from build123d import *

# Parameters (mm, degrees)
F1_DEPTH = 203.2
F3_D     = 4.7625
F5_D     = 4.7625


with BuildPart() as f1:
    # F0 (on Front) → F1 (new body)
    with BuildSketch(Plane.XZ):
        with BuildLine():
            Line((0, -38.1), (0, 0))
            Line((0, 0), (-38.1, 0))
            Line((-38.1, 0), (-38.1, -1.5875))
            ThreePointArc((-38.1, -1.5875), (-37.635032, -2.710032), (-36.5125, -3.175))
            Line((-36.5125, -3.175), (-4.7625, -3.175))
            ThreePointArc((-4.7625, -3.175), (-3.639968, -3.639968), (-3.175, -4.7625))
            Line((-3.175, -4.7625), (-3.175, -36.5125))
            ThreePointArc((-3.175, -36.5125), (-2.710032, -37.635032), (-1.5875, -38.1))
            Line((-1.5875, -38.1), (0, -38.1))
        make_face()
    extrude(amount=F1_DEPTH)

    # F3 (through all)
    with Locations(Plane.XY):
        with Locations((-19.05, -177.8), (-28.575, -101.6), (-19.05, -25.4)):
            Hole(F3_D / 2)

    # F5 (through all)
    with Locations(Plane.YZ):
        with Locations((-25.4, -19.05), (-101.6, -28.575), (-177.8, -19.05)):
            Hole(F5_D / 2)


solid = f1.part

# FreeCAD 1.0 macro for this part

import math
import FreeCAD as App
import Part
import Sketcher
Q = App.Units.Quantity

doc = App.newDocument("Part")
body = doc.addObject("PartDesign::Body", "Body")

# Sketch on XZ plane
sketch1 = body.newObject("Sketcher::SketchObject", "Sketch")
sketch1.AttachmentSupport = (doc.getObject("XZ_Plane"), [""])
sketch1.MapMode = "FlatFace"
sketch1.addGeometry(Part.LineSegment(App.Vector(0, -38.1, 0), App.Vector(0, 0, 0)), False)
sketch1.addGeometry(Part.LineSegment(App.Vector(0, 0, 0), App.Vector(-38.1, 0, 0)), False)
sketch1.addGeometry(Part.LineSegment(App.Vector(-38.1, 0, 0), App.Vector(-38.1, -1.6, 0)), False)
sketch1.addGeometry(Part.ArcOfCircle(Part.Circle(App.Vector(-36.5, -1.6, 0), App.Vector(0, 0, 1), 1.6), math.radians(-180), math.radians(-90)), False)
sketch1.addGeometry(Part.LineSegment(App.Vector(-36.5, -3.2, 0), App.Vector(-4.8, -3.2, 0)), False)
sketch1.addGeometry(Part.ArcOfCircle(Part.Circle(App.Vector(-4.8, -4.8, 0), App.Vector(0, 0, 1), 1.6), math.radians(0), math.radians(90)), False)
sketch1.addGeometry(Part.LineSegment(App.Vector(-3.2, -4.8, 0), App.Vector(-3.2, -36.5, 0)), False)
sketch1.addGeometry(Part.ArcOfCircle(Part.Circle(App.Vector(-1.6, -36.5, 0), App.Vector(0, 0, 1), 1.6), math.radians(-180), math.radians(-90)), False)
sketch1.addGeometry(Part.LineSegment(App.Vector(-1.6, -38.1, 0), App.Vector(0, -38.1, 0)), False)
sketch1.addConstraint(Sketcher.Constraint("Coincident", 0, 2, 1, 1))
sketch1.addConstraint(Sketcher.Constraint("Coincident", 1, 2, 2, 1))
sketch1.addConstraint(Sketcher.Constraint("Tangent", 2, 2, 3, 1))
sketch1.addConstraint(Sketcher.Constraint("Tangent", 3, 2, 4, 1))
sketch1.addConstraint(Sketcher.Constraint("Tangent", 4, 2, 5, 2))
sketch1.addConstraint(Sketcher.Constraint("Tangent", 5, 1, 6, 1))
sketch1.addConstraint(Sketcher.Constraint("Tangent", 6, 2, 7, 1))
sketch1.addConstraint(Sketcher.Constraint("Tangent", 7, 2, 8, 1))
sketch1.addConstraint(Sketcher.Constraint("Coincident", 8, 2, 0, 1))
sketch1.addConstraint(Sketcher.Constraint("Vertical", 0))
sketch1.addConstraint(Sketcher.Constraint("Horizontal", 1))
sketch1.addConstraint(Sketcher.Constraint("Vertical", 2))
sketch1.addConstraint(Sketcher.Constraint("Horizontal", 4))
sketch1.addConstraint(Sketcher.Constraint("Vertical", 6))
sketch1.addConstraint(Sketcher.Constraint("Horizontal", 8))
sketch1.addConstraint(Sketcher.Constraint("Coincident", 0, 2, -1, 1))
sketch1.addConstraint(Sketcher.Constraint("Equal", 3, 5))
sketch1.addConstraint(Sketcher.Constraint("Equal", 5, 7))
sketch1.addConstraint(Sketcher.Constraint("Equal", 1, 0))
sketch1.addConstraint(Sketcher.Constraint("Equal", 8, 2))
sketch1.addConstraint(Sketcher.Constraint("DistanceX", 1, 2, 1, 1, Q("1.5 in")))
sketch1.addConstraint(Sketcher.Constraint("Radius", 3, Q("0.0625 in")))
sketch1.addConstraint(Sketcher.Constraint("DistanceX", 4, 1, 4, 2, Q("1.25 in")))
pad1 = body.newObject("PartDesign::Pad", "Pad")
pad1.Profile = sketch1
pad1.Length = Q("8 in")

# Sketch on XY plane
sketch2 = body.newObject("Sketcher::SketchObject", "Sketch001")
sketch2.AttachmentSupport = (doc.getObject("XY_Plane"), [""])
sketch2.MapMode = "FlatFace"
sketch2.addGeometry(Part.Circle(App.Vector(-19.1, -177.8, 0), App.Vector(0, 0, 1), 2.4), False)
sketch2.addGeometry(Part.Circle(App.Vector(-28.6, -101.6, 0), App.Vector(0, 0, 1), 2.4), False)
sketch2.addGeometry(Part.Circle(App.Vector(-19.1, -25.4, 0), App.Vector(0, 0, 1), 2.4), False)
sketch2.addConstraint(Sketcher.Constraint("Equal", 0, 1))
sketch2.addConstraint(Sketcher.Constraint("Equal", 1, 2))
sketch2.addConstraint(Sketcher.Constraint("Vertical", 0, 3, 2, 3))
sketch2.addConstraint(Sketcher.Constraint("Diameter", 0, Q("0.1875 in")))
sketch2.addConstraint(Sketcher.Constraint("DistanceY", 0, 3, -1, 1, Q("7 in")))
sketch2.addConstraint(Sketcher.Constraint("DistanceY", 1, 3, -1, 1, Q("4 in")))
sketch2.addConstraint(Sketcher.Constraint("DistanceY", 2, 3, -1, 1, Q("1 in")))
sketch2.addConstraint(Sketcher.Constraint("DistanceX", 0, 3, -1, 1, Q("0.75 in")))
sketch2.addConstraint(Sketcher.Constraint("DistanceX", 1, 3, -1, 1, Q("1.125 in")))
doc.recompute()
hole = body.newObject("PartDesign::Hole", "Hole")
hole.Profile = sketch2
hole.ThreadType = "None"
hole.Diameter = Q("0.1875 in")
hole.DepthType = "ThroughAll"

# Sketch on YZ plane
sketch3 = body.newObject("Sketcher::SketchObject", "Sketch002")
sketch3.AttachmentSupport = (doc.getObject("YZ_Plane"), [""])
sketch3.MapMode = "FlatFace"
sketch3.addGeometry(Part.Circle(App.Vector(-25.4, -19.1, 0), App.Vector(0, 0, 1), 2.4), False)
sketch3.addGeometry(Part.Circle(App.Vector(-101.6, -28.6, 0), App.Vector(0, 0, 1), 2.4), False)
sketch3.addGeometry(Part.Circle(App.Vector(-177.8, -19.1, 0), App.Vector(0, 0, 1), 2.4), False)
sketch3.addConstraint(Sketcher.Constraint("Equal", 0, 1))
sketch3.addConstraint(Sketcher.Constraint("Equal", 1, 2))
sketch3.addConstraint(Sketcher.Constraint("Horizontal", 0, 3, 2, 3))
sketch3.addConstraint(Sketcher.Constraint("Diameter", 0, Q("0.1875 in")))
sketch3.addConstraint(Sketcher.Constraint("DistanceX", 0, 3, -1, 1, Q("1 in")))
sketch3.addConstraint(Sketcher.Constraint("DistanceX", 1, 3, -1, 1, Q("4 in")))
sketch3.addConstraint(Sketcher.Constraint("DistanceX", 2, 3, -1, 1, Q("7 in")))
sketch3.addConstraint(Sketcher.Constraint("DistanceY", 0, 3, -1, 1, Q("0.75 in")))
sketch3.addConstraint(Sketcher.Constraint("DistanceY", 1, 3, -1, 1, Q("1.125 in")))
doc.recompute()
hole2 = body.newObject("PartDesign::Hole", "Hole001")
hole2.Profile = sketch3
hole2.ThreadType = "None"
hole2.Diameter = Q("0.1875 in")
hole2.DepthType = "ThroughAll"

doc.recompute()
